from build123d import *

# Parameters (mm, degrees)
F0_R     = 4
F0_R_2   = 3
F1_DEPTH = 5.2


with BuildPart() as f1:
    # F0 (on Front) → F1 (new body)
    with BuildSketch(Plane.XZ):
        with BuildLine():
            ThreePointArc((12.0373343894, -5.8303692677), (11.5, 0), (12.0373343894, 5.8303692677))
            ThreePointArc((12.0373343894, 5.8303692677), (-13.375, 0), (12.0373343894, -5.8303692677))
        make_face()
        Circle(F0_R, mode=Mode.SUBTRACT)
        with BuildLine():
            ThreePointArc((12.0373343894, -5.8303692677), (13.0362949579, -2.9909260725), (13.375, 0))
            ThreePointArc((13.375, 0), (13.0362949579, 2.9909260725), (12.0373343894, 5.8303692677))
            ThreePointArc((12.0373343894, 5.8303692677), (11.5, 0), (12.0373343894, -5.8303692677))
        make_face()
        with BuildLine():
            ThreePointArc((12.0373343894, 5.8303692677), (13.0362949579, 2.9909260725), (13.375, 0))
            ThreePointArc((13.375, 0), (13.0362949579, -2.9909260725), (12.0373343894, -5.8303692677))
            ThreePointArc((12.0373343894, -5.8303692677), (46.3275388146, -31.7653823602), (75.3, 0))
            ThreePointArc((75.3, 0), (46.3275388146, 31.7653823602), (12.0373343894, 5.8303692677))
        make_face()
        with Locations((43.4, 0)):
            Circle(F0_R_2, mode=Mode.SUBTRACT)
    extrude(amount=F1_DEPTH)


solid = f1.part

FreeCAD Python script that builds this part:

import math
import FreeCAD as App
import Part
import Sketcher

V = App.Vector
Q = App.Units.Quantity

doc = App.newDocument("Part")
params = doc.addObject("Spreadsheet::Sheet", "Params")
for row, (alias, value) in enumerate([
    ("sketch1_diameter", "8 mm"),
    ("sketch1_diameter2", "6 mm"),
    ("sketch1_radius", "31.9 mm"),
    ("pad1_length", "5.2 mm"),
], start=1):
    params.set(f"A{row}", alias)
    params.set(f"B{row}", "=" + value)
    params.setAlias(f"B{row}", alias)

body = doc.addObject("PartDesign::Body", "Body")

# Sketch on XZ plane
sketch1 = body.newObject("Sketcher::SketchObject", "Sketch")
sketch1.AttachmentSupport = (doc.getObject("XZ_Plane"), [""])
sketch1.MapMode = "FlatFace"
sketch1.addGeometry([
    Part.ArcOfCircle(Part.Circle(V(0, 0, 0), V(0, 0, 1), 13.375), math.radians(25.84356), math.radians(334.15644)),
    Part.ArcOfCircle(Part.Circle(V(43.4, 0, 0), V(0, 0, 1), 31.9), math.radians(-169.468842), math.radians(169.468842)),
    Part.Circle(V(0, 0, 0), V(0, 0, 1), 4),
    Part.Circle(V(43.4, 0, 0), V(0, 0, 1), 3),
], False)
sketch1.addConstraint([
    Sketcher.Constraint("Coincident", 0, 1, 1, 2),
    Sketcher.Constraint("Coincident", 1, 1, 0, 2),
    Sketcher.Constraint("Coincident", 0, 3, -1, 1),
    Sketcher.Constraint("Coincident", 2, 3, -1, 1),
    Sketcher.Constraint("Coincident", 3, 3, 1, 3),
    Sketcher.Constraint("PointOnObject", 1, 3, -1),
    Sketcher.Constraint("Diameter", 2, Q("8 mm")),
    Sketcher.Constraint("Diameter", 3, Q("6 mm")),
    Sketcher.Constraint("Radius", 1, Q("31.9 mm")),
    Sketcher.Constraint("Radius", 0, Q("13.375 mm")),
    Sketcher.Constraint("DistanceX", -1, 1, 1, 3, Q("43.4 mm")),
])
sketch1.setExpression("Constraints[6]", "Params.sketch1_diameter")
sketch1.setExpression("Constraints[7]", "Params.sketch1_diameter2")
sketch1.setExpression("Constraints[8]", "Params.sketch1_radius")
pad1 = body.newObject("PartDesign::Pad", "Pad")
pad1.Profile = sketch1
pad1.setExpression("Length", "Params.pad1_length")

doc.recompute()
